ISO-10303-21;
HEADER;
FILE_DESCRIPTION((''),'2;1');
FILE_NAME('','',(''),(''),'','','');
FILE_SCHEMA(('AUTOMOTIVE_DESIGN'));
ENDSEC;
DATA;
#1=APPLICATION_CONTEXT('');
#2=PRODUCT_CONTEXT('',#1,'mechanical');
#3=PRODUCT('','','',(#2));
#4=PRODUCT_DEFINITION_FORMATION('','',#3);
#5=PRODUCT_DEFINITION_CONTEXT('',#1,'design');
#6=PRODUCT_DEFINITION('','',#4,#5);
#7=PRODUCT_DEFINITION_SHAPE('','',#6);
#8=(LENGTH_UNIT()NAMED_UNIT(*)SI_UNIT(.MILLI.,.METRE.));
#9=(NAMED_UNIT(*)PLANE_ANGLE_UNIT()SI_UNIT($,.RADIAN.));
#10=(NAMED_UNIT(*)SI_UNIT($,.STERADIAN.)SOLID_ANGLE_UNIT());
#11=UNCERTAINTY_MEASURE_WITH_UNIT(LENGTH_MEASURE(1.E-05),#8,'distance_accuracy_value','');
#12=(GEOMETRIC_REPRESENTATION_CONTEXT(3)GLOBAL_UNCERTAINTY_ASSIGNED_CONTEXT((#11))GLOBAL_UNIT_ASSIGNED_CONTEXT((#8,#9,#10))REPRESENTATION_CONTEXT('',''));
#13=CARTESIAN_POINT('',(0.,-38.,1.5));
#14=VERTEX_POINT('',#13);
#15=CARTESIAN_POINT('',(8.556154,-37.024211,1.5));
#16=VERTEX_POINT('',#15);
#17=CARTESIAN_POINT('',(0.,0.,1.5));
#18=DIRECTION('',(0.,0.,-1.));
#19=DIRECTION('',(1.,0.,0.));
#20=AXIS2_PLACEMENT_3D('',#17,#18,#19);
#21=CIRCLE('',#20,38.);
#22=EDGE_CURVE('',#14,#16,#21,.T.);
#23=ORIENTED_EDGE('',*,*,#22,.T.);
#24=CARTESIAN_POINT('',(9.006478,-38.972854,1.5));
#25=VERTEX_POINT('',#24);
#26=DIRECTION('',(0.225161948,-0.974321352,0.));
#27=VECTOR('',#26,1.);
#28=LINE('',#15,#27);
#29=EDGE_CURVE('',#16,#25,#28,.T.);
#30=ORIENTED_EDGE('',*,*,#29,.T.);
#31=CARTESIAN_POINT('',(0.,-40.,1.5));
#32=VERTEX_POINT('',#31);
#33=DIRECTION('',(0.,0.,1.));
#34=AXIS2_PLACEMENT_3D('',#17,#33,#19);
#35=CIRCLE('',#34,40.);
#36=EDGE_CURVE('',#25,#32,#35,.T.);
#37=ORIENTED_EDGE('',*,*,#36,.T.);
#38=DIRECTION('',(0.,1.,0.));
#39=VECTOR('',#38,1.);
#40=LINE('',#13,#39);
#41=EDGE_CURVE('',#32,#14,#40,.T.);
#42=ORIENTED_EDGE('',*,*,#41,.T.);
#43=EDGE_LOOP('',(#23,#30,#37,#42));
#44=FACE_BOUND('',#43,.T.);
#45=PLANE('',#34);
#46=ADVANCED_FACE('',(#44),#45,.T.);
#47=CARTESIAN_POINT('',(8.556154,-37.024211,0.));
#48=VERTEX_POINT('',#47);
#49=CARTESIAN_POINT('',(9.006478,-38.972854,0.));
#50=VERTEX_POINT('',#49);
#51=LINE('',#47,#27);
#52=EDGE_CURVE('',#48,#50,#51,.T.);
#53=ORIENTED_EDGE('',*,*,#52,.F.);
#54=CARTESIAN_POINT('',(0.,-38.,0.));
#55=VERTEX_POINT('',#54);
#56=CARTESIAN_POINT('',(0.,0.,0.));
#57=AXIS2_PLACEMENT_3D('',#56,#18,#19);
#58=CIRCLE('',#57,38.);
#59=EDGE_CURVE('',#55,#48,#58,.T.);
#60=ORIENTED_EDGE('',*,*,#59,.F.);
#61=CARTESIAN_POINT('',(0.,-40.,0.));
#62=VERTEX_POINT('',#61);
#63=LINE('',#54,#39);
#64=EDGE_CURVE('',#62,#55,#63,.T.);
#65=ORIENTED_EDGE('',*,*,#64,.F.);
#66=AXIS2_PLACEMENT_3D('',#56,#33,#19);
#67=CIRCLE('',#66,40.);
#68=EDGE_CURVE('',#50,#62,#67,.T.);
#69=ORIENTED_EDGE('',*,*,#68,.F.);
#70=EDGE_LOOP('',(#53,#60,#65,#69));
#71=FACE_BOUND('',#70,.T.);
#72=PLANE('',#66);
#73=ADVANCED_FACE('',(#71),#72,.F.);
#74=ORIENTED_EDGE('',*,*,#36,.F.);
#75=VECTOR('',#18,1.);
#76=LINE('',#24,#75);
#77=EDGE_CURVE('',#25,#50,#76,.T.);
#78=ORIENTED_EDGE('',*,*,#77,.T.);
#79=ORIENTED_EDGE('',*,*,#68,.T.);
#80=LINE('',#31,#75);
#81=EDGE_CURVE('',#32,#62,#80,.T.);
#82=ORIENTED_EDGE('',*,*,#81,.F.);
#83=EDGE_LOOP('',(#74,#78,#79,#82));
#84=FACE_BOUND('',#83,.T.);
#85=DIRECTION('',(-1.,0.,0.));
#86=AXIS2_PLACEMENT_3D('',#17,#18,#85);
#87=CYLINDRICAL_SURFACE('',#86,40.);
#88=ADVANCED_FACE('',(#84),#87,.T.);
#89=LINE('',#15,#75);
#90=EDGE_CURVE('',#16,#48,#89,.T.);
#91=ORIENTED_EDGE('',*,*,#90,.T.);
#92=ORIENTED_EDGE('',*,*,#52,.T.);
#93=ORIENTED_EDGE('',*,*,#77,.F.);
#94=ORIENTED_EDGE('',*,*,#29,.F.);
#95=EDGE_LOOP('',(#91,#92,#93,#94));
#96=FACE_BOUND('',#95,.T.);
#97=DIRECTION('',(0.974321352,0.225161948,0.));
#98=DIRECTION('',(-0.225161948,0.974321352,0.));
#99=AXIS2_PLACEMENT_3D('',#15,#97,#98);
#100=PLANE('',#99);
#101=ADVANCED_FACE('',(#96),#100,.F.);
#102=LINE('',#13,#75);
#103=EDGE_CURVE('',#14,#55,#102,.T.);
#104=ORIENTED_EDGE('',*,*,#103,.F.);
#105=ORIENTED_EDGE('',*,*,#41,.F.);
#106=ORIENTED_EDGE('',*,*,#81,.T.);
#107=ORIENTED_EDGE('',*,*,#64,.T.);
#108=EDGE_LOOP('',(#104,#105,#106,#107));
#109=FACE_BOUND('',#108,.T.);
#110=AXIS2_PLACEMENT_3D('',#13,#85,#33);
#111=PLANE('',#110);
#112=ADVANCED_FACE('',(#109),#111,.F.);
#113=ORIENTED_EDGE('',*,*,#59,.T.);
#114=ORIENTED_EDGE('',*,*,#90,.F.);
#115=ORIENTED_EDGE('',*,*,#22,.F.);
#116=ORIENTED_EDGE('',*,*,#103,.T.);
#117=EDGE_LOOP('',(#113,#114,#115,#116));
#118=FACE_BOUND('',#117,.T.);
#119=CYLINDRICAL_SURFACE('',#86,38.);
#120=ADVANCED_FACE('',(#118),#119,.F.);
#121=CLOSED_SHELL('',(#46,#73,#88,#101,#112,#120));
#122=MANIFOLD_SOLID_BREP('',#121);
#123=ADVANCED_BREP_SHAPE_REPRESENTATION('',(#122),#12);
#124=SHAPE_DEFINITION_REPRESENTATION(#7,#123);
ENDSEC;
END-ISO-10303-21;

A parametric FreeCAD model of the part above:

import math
import FreeCAD as App
import Part
import Sketcher

V = App.Vector
Q = App.Units.Quantity

doc = App.newDocument("Part")
body = doc.addObject("PartDesign::Body", "Body")

# Sketch on XY plane
sketch1 = doc.addObject("Sketcher::SketchObject", "Sketch")
body.addObject(sketch1)
sketch1.AttachmentSupport = (doc.XY_Plane, [""])
sketch1.MapMode = "FlatFace"
sketch1.addGeometry(Part.LineSegment(V(8.6, -37, 0), V(9, -39, 0)), False)
sketch1.addGeometry(Part.ArcOfCircle(Part.Circle(V(0, 0, 0), V(0, 0, 1), 40), math.radians(-77), math.radians(270)), False)
sketch1.addGeometry(Part.LineSegment(V(0, -40, 0), V(0, -38, 0)), False)
sketch1.addGeometry(Part.ArcOfCircle(Part.Circle(V(0, 0, 0), V(0, 0, 1), 38), math.radians(-77), math.radians(270)), False)
sketch1.addConstraint(Sketcher.Constraint("Coincident", 0, 2, 1, 1))
sketch1.addConstraint(Sketcher.Constraint("Coincident", 1, 2, 2, 1))
sketch1.addConstraint(Sketcher.Constraint("Coincident", 2, 2, 3, 2))
sketch1.addConstraint(Sketcher.Constraint("Coincident", 3, 1, 0, 1))
sketch1.addConstraint(Sketcher.Constraint("Vertical", 2))
sketch1.addConstraint(Sketcher.Constraint("Coincident", 1, 3, -1, 1))
sketch1.addConstraint(Sketcher.Constraint("Coincident", 3, 3, -1, 1))
sketch1.addConstraint(Sketcher.Constraint("PointOnObject", 1, 2, -2))
sketch1.addConstraint(Sketcher.Constraint("Radius", 1, Q("40 mm")))
sketch1.addConstraint(Sketcher.Constraint("Radius", 3, Q("38 mm")))
sketch1.addConstraint(Sketcher.Constraint("DistanceY", 3, 1, -1, 1, Q("37.024211 mm")))
sketch1.addConstraint(Sketcher.Constraint("DistanceX", -1, 1, 0, 2, Q("9.006478 mm")))
pad1 = doc.addObject("PartDesign::Pad", "Pad")
body.addObject(pad1)
pad1.Profile = sketch1
pad1.Length = 1.5

doc.recompute()
